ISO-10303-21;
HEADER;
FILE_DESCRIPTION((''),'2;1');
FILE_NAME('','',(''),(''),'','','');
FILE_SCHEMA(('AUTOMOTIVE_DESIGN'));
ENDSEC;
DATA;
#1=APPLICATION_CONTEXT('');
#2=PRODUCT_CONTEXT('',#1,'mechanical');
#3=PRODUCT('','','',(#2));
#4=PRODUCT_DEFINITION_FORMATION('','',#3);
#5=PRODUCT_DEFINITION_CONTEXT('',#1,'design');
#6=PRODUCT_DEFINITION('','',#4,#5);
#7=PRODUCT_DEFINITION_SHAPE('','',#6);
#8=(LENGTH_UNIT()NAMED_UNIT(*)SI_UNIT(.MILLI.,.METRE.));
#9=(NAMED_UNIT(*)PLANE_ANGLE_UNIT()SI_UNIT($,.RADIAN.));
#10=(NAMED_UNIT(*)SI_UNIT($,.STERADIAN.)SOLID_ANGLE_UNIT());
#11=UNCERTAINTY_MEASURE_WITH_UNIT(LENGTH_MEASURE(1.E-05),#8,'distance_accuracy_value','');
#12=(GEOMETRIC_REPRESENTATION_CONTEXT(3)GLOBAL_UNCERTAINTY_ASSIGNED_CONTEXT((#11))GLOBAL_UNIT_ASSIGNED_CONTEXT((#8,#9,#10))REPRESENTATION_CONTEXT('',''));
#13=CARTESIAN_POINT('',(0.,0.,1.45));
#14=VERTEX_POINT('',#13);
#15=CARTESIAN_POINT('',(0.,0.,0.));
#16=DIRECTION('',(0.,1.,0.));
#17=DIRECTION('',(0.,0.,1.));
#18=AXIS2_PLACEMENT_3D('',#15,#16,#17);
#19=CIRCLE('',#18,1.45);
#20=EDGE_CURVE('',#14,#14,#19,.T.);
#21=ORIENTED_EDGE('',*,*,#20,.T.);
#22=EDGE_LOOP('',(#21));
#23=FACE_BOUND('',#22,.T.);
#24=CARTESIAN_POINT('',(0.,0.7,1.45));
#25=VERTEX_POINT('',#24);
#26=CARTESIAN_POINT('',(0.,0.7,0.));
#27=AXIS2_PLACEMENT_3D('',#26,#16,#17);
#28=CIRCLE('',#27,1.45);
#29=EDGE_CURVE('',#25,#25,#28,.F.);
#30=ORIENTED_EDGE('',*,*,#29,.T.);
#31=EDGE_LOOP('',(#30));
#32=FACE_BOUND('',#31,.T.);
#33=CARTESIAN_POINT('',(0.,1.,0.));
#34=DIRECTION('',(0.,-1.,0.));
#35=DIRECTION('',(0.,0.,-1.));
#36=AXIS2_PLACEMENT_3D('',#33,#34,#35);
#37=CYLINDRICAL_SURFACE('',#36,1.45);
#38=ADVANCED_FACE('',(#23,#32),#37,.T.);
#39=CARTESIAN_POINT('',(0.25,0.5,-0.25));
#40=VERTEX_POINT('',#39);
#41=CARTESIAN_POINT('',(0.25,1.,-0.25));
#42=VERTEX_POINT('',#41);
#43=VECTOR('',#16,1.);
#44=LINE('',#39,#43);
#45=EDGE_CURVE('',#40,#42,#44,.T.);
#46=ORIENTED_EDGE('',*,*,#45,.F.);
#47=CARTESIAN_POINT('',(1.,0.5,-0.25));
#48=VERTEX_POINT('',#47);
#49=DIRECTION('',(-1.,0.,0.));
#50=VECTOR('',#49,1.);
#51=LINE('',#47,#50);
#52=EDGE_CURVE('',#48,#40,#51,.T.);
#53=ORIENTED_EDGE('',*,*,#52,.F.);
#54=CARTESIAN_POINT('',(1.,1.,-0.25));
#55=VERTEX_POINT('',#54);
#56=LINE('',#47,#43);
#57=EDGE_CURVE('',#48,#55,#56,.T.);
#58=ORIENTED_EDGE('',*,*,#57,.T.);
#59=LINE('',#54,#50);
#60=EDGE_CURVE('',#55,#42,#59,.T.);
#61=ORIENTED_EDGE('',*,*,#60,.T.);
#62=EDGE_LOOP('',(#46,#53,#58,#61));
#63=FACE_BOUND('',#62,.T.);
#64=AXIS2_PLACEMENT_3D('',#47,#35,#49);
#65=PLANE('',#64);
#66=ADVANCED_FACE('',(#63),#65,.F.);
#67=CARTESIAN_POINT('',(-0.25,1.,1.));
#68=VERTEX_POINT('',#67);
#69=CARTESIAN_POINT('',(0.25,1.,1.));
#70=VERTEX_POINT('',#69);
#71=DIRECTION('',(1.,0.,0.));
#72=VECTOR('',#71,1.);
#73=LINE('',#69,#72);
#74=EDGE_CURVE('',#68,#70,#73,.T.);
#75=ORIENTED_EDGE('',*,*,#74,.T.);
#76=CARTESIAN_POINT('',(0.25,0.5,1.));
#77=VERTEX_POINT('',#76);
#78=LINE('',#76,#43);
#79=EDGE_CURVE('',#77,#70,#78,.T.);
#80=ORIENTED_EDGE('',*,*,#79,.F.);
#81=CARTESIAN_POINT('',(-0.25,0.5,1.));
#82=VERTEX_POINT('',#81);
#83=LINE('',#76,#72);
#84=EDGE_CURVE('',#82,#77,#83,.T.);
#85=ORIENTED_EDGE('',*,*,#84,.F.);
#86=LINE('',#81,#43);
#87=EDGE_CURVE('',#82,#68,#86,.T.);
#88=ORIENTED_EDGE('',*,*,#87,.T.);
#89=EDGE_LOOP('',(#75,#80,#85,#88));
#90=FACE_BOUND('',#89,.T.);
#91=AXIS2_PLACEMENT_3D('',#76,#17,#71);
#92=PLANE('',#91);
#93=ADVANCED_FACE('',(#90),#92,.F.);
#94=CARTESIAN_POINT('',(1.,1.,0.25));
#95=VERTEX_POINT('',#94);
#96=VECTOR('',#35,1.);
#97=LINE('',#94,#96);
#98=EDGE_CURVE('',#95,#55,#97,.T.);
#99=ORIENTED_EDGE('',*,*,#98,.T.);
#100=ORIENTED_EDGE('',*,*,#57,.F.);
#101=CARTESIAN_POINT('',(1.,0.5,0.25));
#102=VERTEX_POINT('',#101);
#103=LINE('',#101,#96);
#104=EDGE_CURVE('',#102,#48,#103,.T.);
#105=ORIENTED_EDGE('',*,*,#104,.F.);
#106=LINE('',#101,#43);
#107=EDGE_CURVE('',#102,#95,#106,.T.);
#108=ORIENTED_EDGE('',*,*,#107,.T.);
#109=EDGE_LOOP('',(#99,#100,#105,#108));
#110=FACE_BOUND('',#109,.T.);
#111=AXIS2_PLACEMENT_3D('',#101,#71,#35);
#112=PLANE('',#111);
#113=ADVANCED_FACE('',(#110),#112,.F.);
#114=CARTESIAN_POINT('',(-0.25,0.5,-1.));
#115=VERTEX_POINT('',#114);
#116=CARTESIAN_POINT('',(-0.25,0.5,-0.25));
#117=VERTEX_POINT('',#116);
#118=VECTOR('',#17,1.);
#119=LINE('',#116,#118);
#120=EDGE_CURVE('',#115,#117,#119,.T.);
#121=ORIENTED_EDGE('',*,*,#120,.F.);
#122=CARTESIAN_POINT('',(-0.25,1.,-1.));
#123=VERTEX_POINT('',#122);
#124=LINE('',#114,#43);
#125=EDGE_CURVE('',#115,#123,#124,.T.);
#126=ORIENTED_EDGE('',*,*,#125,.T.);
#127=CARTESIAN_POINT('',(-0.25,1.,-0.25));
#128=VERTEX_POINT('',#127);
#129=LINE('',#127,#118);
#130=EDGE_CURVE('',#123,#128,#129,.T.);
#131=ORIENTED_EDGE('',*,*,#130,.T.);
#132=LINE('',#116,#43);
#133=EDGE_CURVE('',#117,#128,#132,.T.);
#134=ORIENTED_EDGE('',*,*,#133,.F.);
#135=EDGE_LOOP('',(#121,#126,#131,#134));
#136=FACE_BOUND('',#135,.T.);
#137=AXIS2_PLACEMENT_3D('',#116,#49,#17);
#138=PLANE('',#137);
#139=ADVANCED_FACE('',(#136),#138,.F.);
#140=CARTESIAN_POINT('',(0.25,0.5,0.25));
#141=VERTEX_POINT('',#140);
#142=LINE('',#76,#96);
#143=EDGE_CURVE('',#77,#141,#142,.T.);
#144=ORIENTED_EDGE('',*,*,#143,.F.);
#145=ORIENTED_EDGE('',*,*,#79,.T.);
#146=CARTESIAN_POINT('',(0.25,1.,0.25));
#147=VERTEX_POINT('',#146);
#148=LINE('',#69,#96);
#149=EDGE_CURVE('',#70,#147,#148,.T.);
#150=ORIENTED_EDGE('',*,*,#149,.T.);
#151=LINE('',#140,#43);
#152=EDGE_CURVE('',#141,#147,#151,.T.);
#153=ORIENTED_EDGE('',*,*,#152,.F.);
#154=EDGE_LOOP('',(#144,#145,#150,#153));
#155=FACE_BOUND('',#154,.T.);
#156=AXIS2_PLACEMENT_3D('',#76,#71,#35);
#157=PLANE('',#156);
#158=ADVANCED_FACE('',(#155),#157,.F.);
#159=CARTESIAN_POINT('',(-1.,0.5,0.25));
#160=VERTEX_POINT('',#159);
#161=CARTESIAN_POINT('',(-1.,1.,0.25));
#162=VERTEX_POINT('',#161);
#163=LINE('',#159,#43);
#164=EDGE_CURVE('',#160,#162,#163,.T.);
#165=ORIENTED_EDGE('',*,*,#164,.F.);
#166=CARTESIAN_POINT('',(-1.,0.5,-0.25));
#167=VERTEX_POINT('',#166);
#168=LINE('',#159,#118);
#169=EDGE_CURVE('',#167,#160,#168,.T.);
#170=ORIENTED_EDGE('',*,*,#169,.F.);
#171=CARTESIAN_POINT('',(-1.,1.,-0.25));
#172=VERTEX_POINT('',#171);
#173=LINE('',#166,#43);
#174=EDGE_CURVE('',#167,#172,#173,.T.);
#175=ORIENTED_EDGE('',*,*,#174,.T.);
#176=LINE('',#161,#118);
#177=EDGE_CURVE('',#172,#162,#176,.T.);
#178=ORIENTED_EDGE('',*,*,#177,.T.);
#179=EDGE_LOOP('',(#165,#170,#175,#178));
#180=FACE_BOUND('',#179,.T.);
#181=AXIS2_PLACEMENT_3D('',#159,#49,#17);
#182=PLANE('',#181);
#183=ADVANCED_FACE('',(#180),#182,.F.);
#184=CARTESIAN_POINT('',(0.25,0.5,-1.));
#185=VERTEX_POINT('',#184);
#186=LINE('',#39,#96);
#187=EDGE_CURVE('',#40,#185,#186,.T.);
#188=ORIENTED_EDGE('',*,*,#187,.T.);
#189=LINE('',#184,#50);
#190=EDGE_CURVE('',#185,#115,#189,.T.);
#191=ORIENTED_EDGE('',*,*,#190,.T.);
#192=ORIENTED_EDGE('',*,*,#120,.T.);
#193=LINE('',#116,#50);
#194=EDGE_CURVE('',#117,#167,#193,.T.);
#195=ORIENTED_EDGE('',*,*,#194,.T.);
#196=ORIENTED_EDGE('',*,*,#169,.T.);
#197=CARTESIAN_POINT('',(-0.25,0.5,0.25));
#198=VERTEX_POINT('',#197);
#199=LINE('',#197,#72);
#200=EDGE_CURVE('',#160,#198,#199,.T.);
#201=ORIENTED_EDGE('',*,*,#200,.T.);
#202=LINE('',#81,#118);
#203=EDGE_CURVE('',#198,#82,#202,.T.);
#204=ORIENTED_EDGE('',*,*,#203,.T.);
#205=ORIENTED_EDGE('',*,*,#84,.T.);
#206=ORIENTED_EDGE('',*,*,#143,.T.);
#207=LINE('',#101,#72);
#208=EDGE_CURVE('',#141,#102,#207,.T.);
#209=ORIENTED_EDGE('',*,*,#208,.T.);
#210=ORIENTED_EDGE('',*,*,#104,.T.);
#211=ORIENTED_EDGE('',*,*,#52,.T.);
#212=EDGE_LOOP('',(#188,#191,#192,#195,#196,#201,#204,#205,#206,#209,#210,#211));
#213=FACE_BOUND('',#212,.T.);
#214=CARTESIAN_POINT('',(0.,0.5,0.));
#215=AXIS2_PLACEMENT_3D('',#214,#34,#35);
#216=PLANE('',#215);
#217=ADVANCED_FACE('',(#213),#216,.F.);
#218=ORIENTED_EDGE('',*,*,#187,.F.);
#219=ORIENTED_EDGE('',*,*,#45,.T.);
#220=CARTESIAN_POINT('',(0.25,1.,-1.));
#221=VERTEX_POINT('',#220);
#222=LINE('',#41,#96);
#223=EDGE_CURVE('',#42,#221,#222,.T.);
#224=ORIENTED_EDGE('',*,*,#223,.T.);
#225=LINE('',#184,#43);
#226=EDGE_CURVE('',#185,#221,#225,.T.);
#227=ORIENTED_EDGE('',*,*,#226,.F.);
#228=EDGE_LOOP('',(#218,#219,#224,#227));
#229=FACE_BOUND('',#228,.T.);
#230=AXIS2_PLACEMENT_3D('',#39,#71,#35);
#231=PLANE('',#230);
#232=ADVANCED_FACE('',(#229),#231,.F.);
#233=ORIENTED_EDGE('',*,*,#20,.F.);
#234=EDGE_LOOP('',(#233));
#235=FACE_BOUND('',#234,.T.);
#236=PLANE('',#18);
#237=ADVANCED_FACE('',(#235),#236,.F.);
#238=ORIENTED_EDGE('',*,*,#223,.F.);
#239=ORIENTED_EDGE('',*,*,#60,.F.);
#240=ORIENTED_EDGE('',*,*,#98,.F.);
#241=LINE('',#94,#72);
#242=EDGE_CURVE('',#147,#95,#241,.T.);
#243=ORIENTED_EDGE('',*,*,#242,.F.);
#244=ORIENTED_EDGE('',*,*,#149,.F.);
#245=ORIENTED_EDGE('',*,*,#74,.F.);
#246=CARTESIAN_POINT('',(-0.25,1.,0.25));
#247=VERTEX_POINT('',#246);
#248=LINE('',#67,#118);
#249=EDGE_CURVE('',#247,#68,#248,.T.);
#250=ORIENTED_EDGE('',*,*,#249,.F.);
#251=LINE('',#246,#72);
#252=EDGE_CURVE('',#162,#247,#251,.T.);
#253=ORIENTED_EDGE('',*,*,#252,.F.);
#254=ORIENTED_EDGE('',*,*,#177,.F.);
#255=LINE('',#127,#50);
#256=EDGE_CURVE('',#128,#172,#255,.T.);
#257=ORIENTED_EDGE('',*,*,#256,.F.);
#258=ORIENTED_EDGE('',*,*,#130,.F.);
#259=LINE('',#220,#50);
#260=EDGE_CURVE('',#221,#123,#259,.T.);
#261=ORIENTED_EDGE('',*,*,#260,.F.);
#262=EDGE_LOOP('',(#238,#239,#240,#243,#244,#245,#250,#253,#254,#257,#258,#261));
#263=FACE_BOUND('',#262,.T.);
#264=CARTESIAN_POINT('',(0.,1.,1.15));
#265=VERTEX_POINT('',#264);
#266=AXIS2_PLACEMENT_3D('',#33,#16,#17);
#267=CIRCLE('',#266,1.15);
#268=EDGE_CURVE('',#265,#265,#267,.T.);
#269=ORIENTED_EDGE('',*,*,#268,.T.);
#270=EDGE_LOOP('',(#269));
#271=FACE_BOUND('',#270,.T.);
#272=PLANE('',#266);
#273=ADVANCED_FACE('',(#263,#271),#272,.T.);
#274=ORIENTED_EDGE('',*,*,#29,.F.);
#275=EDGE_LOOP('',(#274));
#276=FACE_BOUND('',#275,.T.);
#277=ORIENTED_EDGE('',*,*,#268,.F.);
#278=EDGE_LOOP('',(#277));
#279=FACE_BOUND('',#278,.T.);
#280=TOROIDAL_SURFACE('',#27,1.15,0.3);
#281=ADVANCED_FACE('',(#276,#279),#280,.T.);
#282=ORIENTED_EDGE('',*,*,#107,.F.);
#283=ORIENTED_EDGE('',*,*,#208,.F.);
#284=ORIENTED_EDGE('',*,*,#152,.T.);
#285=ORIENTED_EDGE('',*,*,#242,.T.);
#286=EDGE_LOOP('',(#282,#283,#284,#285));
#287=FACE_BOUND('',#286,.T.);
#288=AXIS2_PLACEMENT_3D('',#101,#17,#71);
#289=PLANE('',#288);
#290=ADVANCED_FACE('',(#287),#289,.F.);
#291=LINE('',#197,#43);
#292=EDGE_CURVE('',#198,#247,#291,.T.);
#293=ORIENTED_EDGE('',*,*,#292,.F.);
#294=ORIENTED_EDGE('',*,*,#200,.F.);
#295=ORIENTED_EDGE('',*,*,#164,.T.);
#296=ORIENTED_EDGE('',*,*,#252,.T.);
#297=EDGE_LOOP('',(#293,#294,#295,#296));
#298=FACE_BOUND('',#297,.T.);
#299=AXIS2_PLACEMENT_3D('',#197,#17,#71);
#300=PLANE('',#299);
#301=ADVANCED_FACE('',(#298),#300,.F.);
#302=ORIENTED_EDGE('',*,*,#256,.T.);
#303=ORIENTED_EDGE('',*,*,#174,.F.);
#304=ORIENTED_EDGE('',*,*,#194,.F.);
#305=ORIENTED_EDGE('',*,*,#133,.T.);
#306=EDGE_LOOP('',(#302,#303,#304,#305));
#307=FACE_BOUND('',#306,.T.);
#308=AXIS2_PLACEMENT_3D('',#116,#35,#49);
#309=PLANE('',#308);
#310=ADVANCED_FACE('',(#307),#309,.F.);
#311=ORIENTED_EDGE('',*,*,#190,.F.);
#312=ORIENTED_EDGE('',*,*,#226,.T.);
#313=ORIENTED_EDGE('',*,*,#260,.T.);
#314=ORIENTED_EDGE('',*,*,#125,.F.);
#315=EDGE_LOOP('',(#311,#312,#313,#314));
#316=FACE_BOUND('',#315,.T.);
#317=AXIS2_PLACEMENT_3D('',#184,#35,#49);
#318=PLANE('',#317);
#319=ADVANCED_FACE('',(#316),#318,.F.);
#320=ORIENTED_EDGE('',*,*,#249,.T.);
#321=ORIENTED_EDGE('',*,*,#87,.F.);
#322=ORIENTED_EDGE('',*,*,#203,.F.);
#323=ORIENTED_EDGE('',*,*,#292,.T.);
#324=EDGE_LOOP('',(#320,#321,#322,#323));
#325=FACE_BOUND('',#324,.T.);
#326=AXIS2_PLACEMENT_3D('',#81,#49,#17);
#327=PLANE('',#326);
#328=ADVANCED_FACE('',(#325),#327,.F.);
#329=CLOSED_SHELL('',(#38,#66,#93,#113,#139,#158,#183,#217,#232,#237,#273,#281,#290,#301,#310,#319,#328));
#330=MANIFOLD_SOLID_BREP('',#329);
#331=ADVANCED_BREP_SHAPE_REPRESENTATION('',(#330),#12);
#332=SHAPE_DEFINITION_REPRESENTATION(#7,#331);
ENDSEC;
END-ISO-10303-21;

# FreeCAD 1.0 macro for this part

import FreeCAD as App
import Part
import Sketcher
from FreeCAD import Vector


def edges_at(feature, points):
    """Names of the edges that pass closest to the given points."""
    edges = feature.Shape.Edges
    near = lambda p: min(range(len(edges)), key=lambda i: edges[i].distToShape(Part.Vertex(*p))[0])
    return sorted({f"Edge{near(p) + 1}" for p in points})


def add_polygon(sketch, points):
    """Adds a closed chain of lines whose ends are joined by coincident constraints."""
    first, n = sketch.GeometryCount, len(points)
    for a, b in zip(points, points[1:] + points[:1]):
        sketch.addGeometry(Part.LineSegment(App.Vector(*a, 0), App.Vector(*b, 0)), False)
    for i in range(n):
        sketch.addConstraint(Sketcher.Constraint("Coincident", first + i, 2, first + (i + 1) % n, 1))

doc = App.newDocument("Part")
body = doc.addObject("PartDesign::Body", "Body")

sketch1 = doc.addObject("Sketcher::SketchObject", "Sketch")
body.addObject(sketch1)
sketch1.AttachmentSupport = (doc.XZ_Plane, [""])
sketch1.MapMode = "FlatFace"
sketch1.addGeometry(Part.Circle(Vector(0, 0, 0), Vector(0, 0, 1), 1.4), False)
sketch1.addConstraint([
    Sketcher.Constraint("Coincident", 0, 3, -1, 1),
    Sketcher.Constraint("Diameter", 0, 2.9),
])
pad1 = doc.addObject("PartDesign::Pad", "Pad")
body.addObject(pad1)
pad1.Profile = sketch1
pad1.Length = 1
pad1.Reversed = True

sketch2 = doc.addObject("Sketcher::SketchObject", "Sketch001")
body.addObject(sketch2)
sketch2.AttachmentSupport = (doc.XZ_Plane, [""])
sketch2.MapMode = "FlatFace"
sketch2.AttachmentOffset = App.Placement(Vector(0, 0, -1), App.Rotation())
add_polygon(sketch2, [(-0.2, -1), (-0.2, -0.2), (-1, -0.2), (-1, 0.2), (-0.2, 0.2), (-0.2, 1), (0.2, 1), (0.2, 0.2), (1, 0.2), (1, -0.2), (0.2, -0.2), (0.2, -1)])
sketch2.addConstraint([
    Sketcher.Constraint("Vertical", 0),
    Sketcher.Constraint("Horizontal", 1),
    Sketcher.Constraint("Vertical", 2),
    Sketcher.Constraint("Horizontal", 3),
    Sketcher.Constraint("Vertical", 4),
    Sketcher.Constraint("Horizontal", 5),
    Sketcher.Constraint("Vertical", 6),
    Sketcher.Constraint("Horizontal", 7),
    Sketcher.Constraint("Vertical", 8),
    Sketcher.Constraint("Horizontal", 9),
    Sketcher.Constraint("Vertical", 10),
    Sketcher.Constraint("Horizontal", 11),
    Sketcher.Constraint("Symmetric", 0, 2, 6, 2, -1, 1),
    Sketcher.Constraint("Symmetric", 2, 2, 8, 2, -1, 1),
    Sketcher.Constraint("Symmetric", 4, 2, 10, 2, -1, 1),
    Sketcher.Constraint("Symmetric", 3, 2, 6, 2, -2),
    Sketcher.Constraint("Equal", 9, 0),
    Sketcher.Constraint("Equal", 11, 2),
    Sketcher.Constraint("DistanceX", 5, 1, 5, 2, 0.5),
    Sketcher.Constraint("DistanceX", 1, 2, -1, 1, 1.0),
])
pocket1 = doc.addObject("PartDesign::Pocket", "Pocket")
body.addObject(pocket1)
pocket1.Profile = sketch2
pocket1.Length = 0.5
pocket1.Reversed = True
doc.recompute()

fillet = doc.addObject("PartDesign::Fillet", "Fillet")
body.addObject(fillet)
fillet.Base = (pocket1, edges_at(pocket1, [(-1.45, 1, 0)]))
fillet.Radius = 0.3

doc.recompute()
